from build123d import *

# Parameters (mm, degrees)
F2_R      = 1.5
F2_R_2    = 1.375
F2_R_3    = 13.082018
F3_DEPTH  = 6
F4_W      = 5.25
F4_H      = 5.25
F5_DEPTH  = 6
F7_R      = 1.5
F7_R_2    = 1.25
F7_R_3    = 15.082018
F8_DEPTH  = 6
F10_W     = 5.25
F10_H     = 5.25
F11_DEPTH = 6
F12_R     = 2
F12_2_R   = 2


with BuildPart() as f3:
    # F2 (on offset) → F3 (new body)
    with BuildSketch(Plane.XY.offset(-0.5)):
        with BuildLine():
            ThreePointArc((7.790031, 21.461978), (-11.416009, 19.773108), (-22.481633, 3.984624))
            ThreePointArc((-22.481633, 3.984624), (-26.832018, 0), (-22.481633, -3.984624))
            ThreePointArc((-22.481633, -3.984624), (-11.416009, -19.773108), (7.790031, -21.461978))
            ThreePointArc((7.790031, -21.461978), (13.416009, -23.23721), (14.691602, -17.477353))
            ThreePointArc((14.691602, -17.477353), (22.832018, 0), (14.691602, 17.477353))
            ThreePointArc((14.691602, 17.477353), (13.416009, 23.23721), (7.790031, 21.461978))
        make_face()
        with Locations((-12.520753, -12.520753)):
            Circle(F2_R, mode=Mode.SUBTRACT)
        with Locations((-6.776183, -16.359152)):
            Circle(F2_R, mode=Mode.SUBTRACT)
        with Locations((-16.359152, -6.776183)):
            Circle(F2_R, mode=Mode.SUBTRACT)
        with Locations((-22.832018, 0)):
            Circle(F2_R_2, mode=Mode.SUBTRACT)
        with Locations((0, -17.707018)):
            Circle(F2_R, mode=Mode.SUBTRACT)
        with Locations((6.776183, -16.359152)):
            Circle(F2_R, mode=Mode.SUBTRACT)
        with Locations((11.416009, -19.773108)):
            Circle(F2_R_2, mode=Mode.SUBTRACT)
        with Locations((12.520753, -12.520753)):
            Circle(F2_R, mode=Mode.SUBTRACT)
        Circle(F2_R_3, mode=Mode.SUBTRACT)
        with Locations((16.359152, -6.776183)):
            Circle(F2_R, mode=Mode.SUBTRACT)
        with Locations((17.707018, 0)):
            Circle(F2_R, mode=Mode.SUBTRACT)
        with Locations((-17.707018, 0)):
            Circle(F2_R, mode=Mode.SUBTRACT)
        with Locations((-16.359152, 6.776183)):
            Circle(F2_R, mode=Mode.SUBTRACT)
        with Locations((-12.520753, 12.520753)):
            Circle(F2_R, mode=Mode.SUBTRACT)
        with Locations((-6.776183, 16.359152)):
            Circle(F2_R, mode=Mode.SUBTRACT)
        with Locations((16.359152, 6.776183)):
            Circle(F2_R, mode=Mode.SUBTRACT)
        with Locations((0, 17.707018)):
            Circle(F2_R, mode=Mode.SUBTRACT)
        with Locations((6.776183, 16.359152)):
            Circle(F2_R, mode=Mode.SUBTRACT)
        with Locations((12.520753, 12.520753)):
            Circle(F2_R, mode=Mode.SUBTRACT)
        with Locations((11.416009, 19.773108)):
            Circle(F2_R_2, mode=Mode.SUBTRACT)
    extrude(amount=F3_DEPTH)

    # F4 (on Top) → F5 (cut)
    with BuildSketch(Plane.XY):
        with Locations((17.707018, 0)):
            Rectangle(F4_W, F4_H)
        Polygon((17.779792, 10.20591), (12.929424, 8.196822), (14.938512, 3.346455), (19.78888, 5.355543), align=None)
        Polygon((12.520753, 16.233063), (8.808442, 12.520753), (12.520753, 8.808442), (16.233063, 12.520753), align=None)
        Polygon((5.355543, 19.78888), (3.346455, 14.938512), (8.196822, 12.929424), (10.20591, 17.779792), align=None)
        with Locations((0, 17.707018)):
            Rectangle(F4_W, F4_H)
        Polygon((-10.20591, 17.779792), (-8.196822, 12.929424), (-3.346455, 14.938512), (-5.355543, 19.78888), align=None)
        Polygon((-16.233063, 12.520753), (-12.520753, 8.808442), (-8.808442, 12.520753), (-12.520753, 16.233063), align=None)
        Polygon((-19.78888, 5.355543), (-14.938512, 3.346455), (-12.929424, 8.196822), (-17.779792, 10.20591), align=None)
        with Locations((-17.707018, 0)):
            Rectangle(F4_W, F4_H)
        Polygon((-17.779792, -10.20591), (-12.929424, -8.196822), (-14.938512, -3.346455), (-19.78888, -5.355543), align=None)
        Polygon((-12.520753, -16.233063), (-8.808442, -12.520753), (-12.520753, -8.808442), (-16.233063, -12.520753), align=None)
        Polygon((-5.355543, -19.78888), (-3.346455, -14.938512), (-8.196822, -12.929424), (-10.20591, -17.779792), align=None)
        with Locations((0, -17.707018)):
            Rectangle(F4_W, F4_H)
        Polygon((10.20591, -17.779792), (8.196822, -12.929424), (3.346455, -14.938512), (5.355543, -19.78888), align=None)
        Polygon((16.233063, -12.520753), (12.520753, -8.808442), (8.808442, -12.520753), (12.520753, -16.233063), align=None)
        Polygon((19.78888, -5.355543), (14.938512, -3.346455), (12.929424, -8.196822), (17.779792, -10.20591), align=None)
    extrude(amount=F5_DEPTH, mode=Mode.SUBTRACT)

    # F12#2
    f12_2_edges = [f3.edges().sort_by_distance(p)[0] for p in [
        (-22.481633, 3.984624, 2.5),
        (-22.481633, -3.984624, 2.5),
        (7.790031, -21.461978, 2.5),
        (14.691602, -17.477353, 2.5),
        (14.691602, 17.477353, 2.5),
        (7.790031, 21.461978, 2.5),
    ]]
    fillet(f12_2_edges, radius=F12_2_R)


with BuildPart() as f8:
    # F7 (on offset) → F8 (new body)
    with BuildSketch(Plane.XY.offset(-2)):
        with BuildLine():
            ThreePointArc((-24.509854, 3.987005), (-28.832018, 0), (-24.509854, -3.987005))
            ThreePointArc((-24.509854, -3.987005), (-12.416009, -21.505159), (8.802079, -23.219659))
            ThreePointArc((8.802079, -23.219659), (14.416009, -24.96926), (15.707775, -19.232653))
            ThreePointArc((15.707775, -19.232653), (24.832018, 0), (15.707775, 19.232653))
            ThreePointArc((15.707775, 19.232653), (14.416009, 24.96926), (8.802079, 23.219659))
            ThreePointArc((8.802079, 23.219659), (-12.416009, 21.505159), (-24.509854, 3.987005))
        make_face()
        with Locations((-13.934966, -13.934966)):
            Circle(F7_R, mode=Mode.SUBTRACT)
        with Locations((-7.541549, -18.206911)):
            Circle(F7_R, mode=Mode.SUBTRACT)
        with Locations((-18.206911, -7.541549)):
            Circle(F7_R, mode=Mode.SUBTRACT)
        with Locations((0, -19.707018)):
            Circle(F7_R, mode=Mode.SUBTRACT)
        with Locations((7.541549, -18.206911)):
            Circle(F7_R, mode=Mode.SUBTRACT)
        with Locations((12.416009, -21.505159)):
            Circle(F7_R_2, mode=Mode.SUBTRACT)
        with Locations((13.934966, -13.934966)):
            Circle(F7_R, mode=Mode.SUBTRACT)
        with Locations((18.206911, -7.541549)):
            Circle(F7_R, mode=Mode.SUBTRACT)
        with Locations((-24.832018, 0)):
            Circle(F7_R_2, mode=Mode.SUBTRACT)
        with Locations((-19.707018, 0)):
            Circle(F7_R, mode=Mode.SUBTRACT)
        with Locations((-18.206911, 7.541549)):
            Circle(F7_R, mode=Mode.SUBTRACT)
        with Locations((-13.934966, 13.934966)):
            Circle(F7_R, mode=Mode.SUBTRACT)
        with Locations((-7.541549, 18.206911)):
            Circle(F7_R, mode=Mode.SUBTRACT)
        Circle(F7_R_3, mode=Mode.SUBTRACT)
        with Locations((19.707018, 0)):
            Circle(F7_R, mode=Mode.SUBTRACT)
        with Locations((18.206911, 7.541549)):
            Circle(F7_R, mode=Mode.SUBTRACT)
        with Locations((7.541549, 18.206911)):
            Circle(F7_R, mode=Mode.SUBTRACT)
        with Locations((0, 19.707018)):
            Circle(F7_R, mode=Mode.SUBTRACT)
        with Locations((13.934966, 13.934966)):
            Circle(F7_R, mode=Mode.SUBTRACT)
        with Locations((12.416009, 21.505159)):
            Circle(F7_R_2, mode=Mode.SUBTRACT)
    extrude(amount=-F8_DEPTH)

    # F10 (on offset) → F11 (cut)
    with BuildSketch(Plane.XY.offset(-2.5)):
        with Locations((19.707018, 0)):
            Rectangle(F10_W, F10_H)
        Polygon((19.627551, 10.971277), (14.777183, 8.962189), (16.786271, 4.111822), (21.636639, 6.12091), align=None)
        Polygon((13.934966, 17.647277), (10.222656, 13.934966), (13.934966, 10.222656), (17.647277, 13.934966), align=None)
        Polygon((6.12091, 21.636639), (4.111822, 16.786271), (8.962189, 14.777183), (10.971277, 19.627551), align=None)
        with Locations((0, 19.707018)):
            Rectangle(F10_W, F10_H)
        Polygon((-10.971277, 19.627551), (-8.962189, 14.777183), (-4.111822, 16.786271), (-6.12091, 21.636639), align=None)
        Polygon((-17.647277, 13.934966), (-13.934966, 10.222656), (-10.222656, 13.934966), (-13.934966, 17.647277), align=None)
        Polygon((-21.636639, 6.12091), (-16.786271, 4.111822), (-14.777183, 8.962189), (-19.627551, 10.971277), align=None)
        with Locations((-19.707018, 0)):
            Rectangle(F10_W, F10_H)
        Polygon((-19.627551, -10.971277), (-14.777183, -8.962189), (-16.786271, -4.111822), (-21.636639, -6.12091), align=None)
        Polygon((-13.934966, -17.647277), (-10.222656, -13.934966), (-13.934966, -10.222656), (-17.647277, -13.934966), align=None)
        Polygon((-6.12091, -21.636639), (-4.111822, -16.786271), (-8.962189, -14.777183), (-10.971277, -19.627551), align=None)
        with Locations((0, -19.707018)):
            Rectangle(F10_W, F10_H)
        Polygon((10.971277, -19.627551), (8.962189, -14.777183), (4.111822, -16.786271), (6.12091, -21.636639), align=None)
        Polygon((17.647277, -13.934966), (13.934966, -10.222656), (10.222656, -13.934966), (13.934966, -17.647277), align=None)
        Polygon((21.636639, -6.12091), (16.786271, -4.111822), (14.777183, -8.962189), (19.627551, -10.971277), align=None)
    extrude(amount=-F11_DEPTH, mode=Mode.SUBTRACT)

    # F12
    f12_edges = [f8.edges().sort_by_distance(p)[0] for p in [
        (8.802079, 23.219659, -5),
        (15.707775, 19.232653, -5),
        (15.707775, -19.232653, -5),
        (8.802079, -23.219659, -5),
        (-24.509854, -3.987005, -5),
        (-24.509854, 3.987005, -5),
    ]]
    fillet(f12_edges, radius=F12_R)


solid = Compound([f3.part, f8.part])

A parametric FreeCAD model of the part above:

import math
import FreeCAD as App
import Part
import Sketcher
Q = App.Units.Quantity


def edges_at(feature, points):
    """Names of the edges that pass closest to the given points."""
    edges = feature.Shape.Edges
    near = lambda p: min(range(len(edges)), key=lambda i: edges[i].distToShape(Part.Vertex(*p))[0])
    return sorted({f"Edge{near(p) + 1}" for p in points})


def add_polygon(sketch, points):
    """Adds a closed chain of lines whose ends are joined by coincident constraints."""
    first, n = sketch.GeometryCount, len(points)
    for a, b in zip(points, points[1:] + points[:1]):
        sketch.addGeometry(Part.LineSegment(App.Vector(*a, 0), App.Vector(*b, 0)), False)
    for i in range(n):
        sketch.addConstraint(Sketcher.Constraint("Coincident", first + i, 2, first + (i + 1) % n, 1))

doc = App.newDocument("Part")
body = doc.addObject("PartDesign::Body", "Body")

# Sketch on XY plane
sketch1 = doc.addObject("Sketcher::SketchObject", "Sketch")
body.addObject(sketch1)
sketch1.AttachmentSupport = (doc.XY_Plane, [""])
sketch1.MapMode = "FlatFace"
sketch1.AttachmentOffset = App.Placement(App.Vector(0, 0, -0.5), App.Rotation())
sketch1.addGeometry([
    Part.ArcOfCircle(Part.Circle(App.Vector(0.000001, 0, 0), App.Vector(0, 0, 1), 22.832019), math.radians(70.050678), math.radians(169.949324)),  # 0
    Part.ArcOfCircle(Part.Circle(App.Vector(-22.832018, 0, 0), App.Vector(0, 0, 1), 4), math.radians(84.97466), math.radians(275.02534)),  # 1
    Part.ArcOfCircle(Part.Circle(App.Vector(0.000001, 0, 0), App.Vector(0, 0, 1), 22.832019), math.radians(-169.949324), math.radians(-70.050678)),  # 2
    Part.ArcOfCircle(Part.Circle(App.Vector(11.416009, -19.773108, 0), App.Vector(0, 0, 1), 4), math.radians(-155.025337), math.radians(35.025351)),  # 3
    Part.ArcOfCircle(Part.Circle(App.Vector(0.000001, 0, 0), App.Vector(0, 0, 1), 22.832017), math.radians(-49.949325), math.radians(49.949325)),  # 4
    Part.ArcOfCircle(Part.Circle(App.Vector(11.416009, 19.773108, 0), App.Vector(0, 0, 1), 4), math.radians(-35.025351), math.radians(155.025337)),  # 5
    Part.Circle(App.Vector(-6.776183, -16.359152, 0), App.Vector(0, 0, 1), 1.5),  # 6
    Part.Circle(App.Vector(-12.520753, -12.520753, 0), App.Vector(0, 0, 1), 1.5),  # 7
    Part.Circle(App.Vector(-16.359152, -6.776183, 0), App.Vector(0, 0, 1), 1.5),  # 8
    Part.Circle(App.Vector(0, -17.707018, 0), App.Vector(0, 0, 1), 1.5),  # 9
    Part.Circle(App.Vector(6.776183, -16.359152, 0), App.Vector(0, 0, 1), 1.5),  # 10
    Part.Circle(App.Vector(11.416009, -19.773108, 0), App.Vector(0, 0, 1), 1.375),  # 11
    Part.Circle(App.Vector(12.520753, -12.520753, 0), App.Vector(0, 0, 1), 1.5),  # 12
    Part.Circle(App.Vector(16.359152, -6.776183, 0), App.Vector(0, 0, 1), 1.5),  # 13
    Part.Circle(App.Vector(-22.832018, 0, 0), App.Vector(0, 0, 1), 1.375),  # 14
    Part.Circle(App.Vector(-17.707018, 0, 0), App.Vector(0, 0, 1), 1.5),  # 15
    Part.Circle(App.Vector(-16.359152, 6.776183, 0), App.Vector(0, 0, 1), 1.5),  # 16
    Part.Circle(App.Vector(-12.520753, 12.520753, 0), App.Vector(0, 0, 1), 1.5),  # 17
    Part.Circle(App.Vector(-6.776183, 16.359152, 0), App.Vector(0, 0, 1), 1.5),  # 18
    Part.Circle(App.Vector(0, 0, 0), App.Vector(0, 0, 1), 13.082018),  # 19
    Part.Circle(App.Vector(17.707018, 0, 0), App.Vector(0, 0, 1), 1.5),  # 20
    Part.Circle(App.Vector(16.359152, 6.776183, 0), App.Vector(0, 0, 1), 1.5),  # 21
    Part.Circle(App.Vector(0, 17.707018, 0), App.Vector(0, 0, 1), 1.5),  # 22
    Part.Circle(App.Vector(6.776183, 16.359152, 0), App.Vector(0, 0, 1), 1.5),  # 23
    Part.Circle(App.Vector(12.520753, 12.520753, 0), App.Vector(0, 0, 1), 1.5),  # 24
    Part.Circle(App.Vector(11.416009, 19.773108, 0), App.Vector(0, 0, 1), 1.375),  # 25
], False)
sketch1.addConstraint([
    Sketcher.Constraint("Coincident", 0, 2, 1, 1),
    Sketcher.Constraint("Coincident", 1, 2, 2, 1),
    Sketcher.Constraint("Coincident", 2, 2, 3, 1),
    Sketcher.Constraint("Coincident", 3, 2, 4, 1),
    Sketcher.Constraint("Coincident", 4, 2, 5, 1),
    Sketcher.Constraint("Coincident", 5, 2, 0, 1),
    Sketcher.Constraint("Coincident", 0, 3, -1, 1),
    Sketcher.Constraint("Coincident", 2, 3, -1, 1),
    Sketcher.Constraint("Coincident", 4, 3, -1, 1),
    Sketcher.Constraint("Coincident", 19, 3, -1, 1),
    Sketcher.Constraint("Coincident", 11, 3, 3, 3),
    Sketcher.Constraint("Coincident", 14, 3, 1, 3),
    Sketcher.Constraint("Coincident", 25, 3, 5, 3),
    Sketcher.Constraint("Equal", 0, 2),
    Sketcher.Constraint("Equal", 1, 3),
    Sketcher.Constraint("Equal", 2, 4),
    Sketcher.Constraint("Equal", 3, 5),
    Sketcher.Constraint("Equal", 6, 7),
    Sketcher.Constraint("Equal", 7, 8),
    Sketcher.Constraint("Equal", 8, 9),
    Sketcher.Constraint("Equal", 9, 10),
    Sketcher.Constraint("Equal", 10, 12),
    Sketcher.Constraint("Equal", 12, 13),
    Sketcher.Constraint("Equal", 11, 14),
    Sketcher.Constraint("Equal", 13, 15),
    Sketcher.Constraint("Equal", 15, 16),
    Sketcher.Constraint("Equal", 16, 17),
    Sketcher.Constraint("Equal", 17, 18),
    Sketcher.Constraint("Equal", 18, 20),
    Sketcher.Constraint("Equal", 20, 21),
    Sketcher.Constraint("Equal", 21, 22),
    Sketcher.Constraint("Equal", 22, 23),
    Sketcher.Constraint("Equal", 23, 24),
    Sketcher.Constraint("Equal", 14, 25),
    Sketcher.Constraint("Symmetric", 13, 3, 16, 3, -1, 1),
    Sketcher.Constraint("Symmetric", 12, 3, 17, 3, -1, 1),
    Sketcher.Constraint("Symmetric", 10, 3, 18, 3, -1, 1),
    Sketcher.Constraint("Symmetric", 15, 3, 20, 3, -1, 1),
    Sketcher.Constraint("Symmetric", 8, 3, 21, 3, -1, 1),
    Sketcher.Constraint("Symmetric", 9, 3, 22, 3, -1, 1),
    Sketcher.Constraint("Symmetric", 6, 3, 23, 3, -1, 1),
    Sketcher.Constraint("Symmetric", 7, 3, 24, 3, -1, 1),
    Sketcher.Constraint("Symmetric", 6, 3, 10, 3, -2),
    Sketcher.Constraint("Symmetric", 7, 3, 12, 3, -2),
    Sketcher.Constraint("Symmetric", 8, 3, 13, 3, -2),
    Sketcher.Constraint("Symmetric", 3, 3, 5, 3, -1),
    Sketcher.Constraint("PointOnObject", 1, 3, -1),
    Sketcher.Constraint("PointOnObject", 9, 3, -2),
    Sketcher.Constraint("PointOnObject", 15, 3, -1),
    Sketcher.Constraint("Diameter", 6, 3.0),
    Sketcher.Constraint("Radius", 1, 4.0),
    Sketcher.Constraint("Diameter", 11, 2.75),
    Sketcher.Constraint("Radius", 0, 22.832019),
    Sketcher.Constraint("Diameter", 19, 26.164036),
    Sketcher.Constraint("DistanceX", 14, 3, 15, 3, 5.125),
    Sketcher.Constraint("DistanceX", -1, 1, 3, 2, 14.691602),
    Sketcher.Constraint("DistanceY", 6, 3, 7, 3, 3.838399),
    Sketcher.Constraint("DistanceX", 8, 3, 7, 3, 3.838399),
    Sketcher.Constraint("DistanceY", 3, 2, 12, 3, 4.9566),
    Sketcher.Constraint("DistanceX", 1, 3, -1, 1, 22.832018),
    Sketcher.Constraint("DistanceX", -1, 1, 3, 3, 11.416009),
    Sketcher.Constraint("DistanceY", 9, 3, -1, 1, 17.707018),
    Sketcher.Constraint("DistanceX", 7, 3, 6, 3, 5.74457),
    Sketcher.Constraint("DistanceY", 7, 3, 8, 3, 5.74457),
    Sketcher.Constraint("DistanceX", 6, 3, 11, 3, 18.192192),
])
pad1 = doc.addObject("PartDesign::Pad", "Pad")
body.addObject(pad1)
pad1.Profile = sketch1
pad1.Length = 6

# Sketch on XY plane
sketch2 = doc.addObject("Sketcher::SketchObject", "Sketch001")
body.addObject(sketch2)
sketch2.AttachmentSupport = (doc.XY_Plane, [""])
sketch2.MapMode = "FlatFace"
add_polygon(sketch2, [(15.082018, 2.625), (15.082018, -2.625), (20.332018, -2.625), (20.332018, 2.625)])  # lines 0-3
add_polygon(sketch2, [(17.779792, 10.20591), (12.929424, 8.196822), (14.938512, 3.346455), (19.78888, 5.355543)])  # lines 4-7
add_polygon(sketch2, [(12.520753, 16.233063), (8.808442, 12.520753), (12.520753, 8.808442), (16.233063, 12.520753)])  # lines 8-11
add_polygon(sketch2, [(5.355543, 19.78888), (3.346455, 14.938512), (8.196822, 12.929424), (10.20591, 17.779792)])  # lines 12-15
add_polygon(sketch2, [(-2.625, 20.332018), (-2.625, 15.082018), (2.625, 15.082018), (2.625, 20.332018)])  # lines 16-19
add_polygon(sketch2, [(-10.20591, 17.779792), (-8.196822, 12.929424), (-3.346455, 14.938512), (-5.355543, 19.78888)])  # lines 20-23
add_polygon(sketch2, [(-16.233063, 12.520753), (-12.520753, 8.808442), (-8.808442, 12.520753), (-12.520753, 16.233063)])  # lines 24-27
add_polygon(sketch2, [(-19.78888, 5.355543), (-14.938512, 3.346455), (-12.929424, 8.196822), (-17.779792, 10.20591)])  # lines 28-31
add_polygon(sketch2, [(-20.332018, 2.625), (-20.332018, -2.625), (-15.082018, -2.625), (-15.082018, 2.625)])  # lines 32-35
add_polygon(sketch2, [(-17.779792, -10.20591), (-12.929424, -8.196822), (-14.938512, -3.346455), (-19.78888, -5.355543)])  # lines 36-39
add_polygon(sketch2, [(-12.520753, -16.233063), (-8.808442, -12.520753), (-12.520753, -8.808442), (-16.233063, -12.520753)])  # lines 40-43
add_polygon(sketch2, [(-5.355543, -19.78888), (-3.346455, -14.938512), (-8.196822, -12.929424), (-10.20591, -17.779792)])  # lines 44-47
add_polygon(sketch2, [(-2.625, -15.082018), (-2.625, -20.332018), (2.625, -20.332018), (2.625, -15.082018)])  # lines 48-51
add_polygon(sketch2, [(10.20591, -17.779792), (8.196822, -12.929424), (3.346455, -14.938512), (5.355543, -19.78888)])  # lines 52-55
add_polygon(sketch2, [(16.233063, -12.520753), (12.520753, -8.808442), (8.808442, -12.520753), (12.520753, -16.233063)])  # lines 56-59
add_polygon(sketch2, [(19.78888, -5.355543), (14.938512, -3.346455), (12.929424, -8.196822), (17.779792, -10.20591)])  # lines 60-63
sketch2.addConstraint([
    Sketcher.Constraint("Vertical", 0),
    Sketcher.Constraint("Horizontal", 1),
    Sketcher.Constraint("Vertical", 2),
    Sketcher.Constraint("Horizontal", 3),
    Sketcher.Constraint("Vertical", 16),
    Sketcher.Constraint("Horizontal", 17),
    Sketcher.Constraint("Vertical", 18),
    Sketcher.Constraint("Horizontal", 19),
    Sketcher.Constraint("Vertical", 32),
    Sketcher.Constraint("Horizontal", 33),
    Sketcher.Constraint("Vertical", 34),
    Sketcher.Constraint("Horizontal", 35),
    Sketcher.Constraint("Vertical", 48),
    Sketcher.Constraint("Horizontal", 49),
    Sketcher.Constraint("Vertical", 50),
    Sketcher.Constraint("Horizontal", 51),
    Sketcher.Constraint("Symmetric", 2, 2, 32, 2, -1, 1),
    Sketcher.Constraint("Symmetric", 0, 2, 34, 2, -1, 1),
    Sketcher.Constraint("Symmetric", 4, 2, 36, 2, -1, 1),
    Sketcher.Constraint("Symmetric", 5, 2, 37, 2, -1, 1),
    Sketcher.Constraint("Symmetric", 6, 2, 38, 2, -1, 1),
    Sketcher.Constraint("Symmetric", 7, 2, 39, 2, -1, 1),
    Sketcher.Constraint("Symmetric", 8, 2, 40, 2, -1, 1),
    Sketcher.Constraint("Symmetric", 9, 2, 41, 2, -1, 1),
    Sketcher.Constraint("Symmetric", 10, 2, 42, 2, -1, 1),
    Sketcher.Constraint("Symmetric", 11, 2, 43, 2, -1, 1),
    Sketcher.Constraint("Symmetric", 12, 2, 44, 2, -1, 1),
    Sketcher.Constraint("Symmetric", 13, 2, 45, 2, -1, 1),
    Sketcher.Constraint("Symmetric", 14, 2, 46, 2, -1, 1),
    Sketcher.Constraint("Symmetric", 15, 2, 47, 2, -1, 1),
    Sketcher.Constraint("Symmetric", 18, 2, 48, 2, -1, 1),
    Sketcher.Constraint("Symmetric", 16, 2, 50, 2, -1, 1),
    Sketcher.Constraint("Symmetric", 20, 2, 52, 2, -1, 1),
    Sketcher.Constraint("Symmetric", 21, 2, 53, 2, -1, 1),
    Sketcher.Constraint("Symmetric", 22, 2, 54, 2, -1, 1),
    Sketcher.Constraint("Symmetric", 23, 2, 55, 2, -1, 1),
    Sketcher.Constraint("Symmetric", 24, 2, 56, 2, -1, 1),
    Sketcher.Constraint("Symmetric", 25, 2, 57, 2, -1, 1),
    Sketcher.Constraint("Symmetric", 26, 2, 58, 2, -1, 1),
    Sketcher.Constraint("Symmetric", 27, 2, 59, 2, -1, 1),
    Sketcher.Constraint("Symmetric", 28, 2, 60, 2, -1, 1),
    Sketcher.Constraint("Symmetric", 29, 2, 61, 2, -1, 1),
    Sketcher.Constraint("Symmetric", 30, 2, 62, 2, -1, 1),
    Sketcher.Constraint("Symmetric", 31, 2, 63, 2, -1, 1),
    Sketcher.Constraint("Symmetric", 13, 2, 20, 2, -2),
    Sketcher.Constraint("Symmetric", 12, 2, 21, 2, -2),
    Sketcher.Constraint("Symmetric", 15, 2, 22, 2, -2),
    Sketcher.Constraint("Symmetric", 14, 2, 23, 2, -2),
    Sketcher.Constraint("Symmetric", 9, 2, 24, 2, -2),
    Sketcher.Constraint("Symmetric", 8, 2, 25, 2, -2),
    Sketcher.Constraint("Symmetric", 11, 2, 26, 2, -2),
    Sketcher.Constraint("Symmetric", 10, 2, 27, 2, -2),
    Sketcher.Constraint("Symmetric", 5, 2, 28, 2, -2),
    Sketcher.Constraint("Symmetric", 4, 2, 29, 2, -2),
    Sketcher.Constraint("Symmetric", 7, 2, 30, 2, -2),
    Sketcher.Constraint("Symmetric", 6, 2, 31, 2, -2),
    Sketcher.Constraint("Perpendicular", 4, 5),
    Sketcher.Constraint("Perpendicular", 5, 6),
    Sketcher.Constraint("Perpendicular", 6, 7),
    Sketcher.Constraint("Perpendicular", 8, 9),
    Sketcher.Constraint("Perpendicular", 9, 10),
    Sketcher.Constraint("Perpendicular", 10, 11),
    Sketcher.Constraint("Perpendicular", 12, 13),
    Sketcher.Constraint("Perpendicular", 13, 14),
    Sketcher.Constraint("Perpendicular", 14, 15),
    Sketcher.Constraint("Parallel", 7, 20),
    Sketcher.Constraint("Parallel", 11, 24),
    Sketcher.Constraint("Horizontal", 8, 2, 10, 2),
    Sketcher.Constraint("Horizontal", 1, 2, 32, 2),
    Sketcher.Constraint("Vertical", 19, 2, 48, 2),
    Sketcher.Constraint("Equal", 3, 17),
    Sketcher.Constraint("Equal", 51, 0),
    Sketcher.Constraint("Equal", 2, 16),
    Sketcher.Constraint("Equal", 4, 5),
    Sketcher.Constraint("Equal", 7, 8),
    Sketcher.Constraint("Equal", 11, 12),
    Sketcher.Constraint("Equal", 12, 13),
    Sketcher.Constraint("Angle", 4, Q("-157.500002 deg")),
    Sketcher.Constraint("DistanceX", 1, 1, 1, 2, 5.25),
    Sketcher.Constraint("Distance", 4, 5.25),
    Sketcher.Constraint("DistanceX", -1, 1, 1, 2, 20.332018),
    Sketcher.Constraint("DistanceY", -1, 1, 4, 2, 8.196822),
    Sketcher.Constraint("DistanceX", -1, 1, 5, 2, 14.938512),
    Sketcher.Constraint("DistanceY", -1, 1, 12, 2, 14.938512),
    Sketcher.Constraint("DistanceX", -1, 1, 13, 2, 8.196822),
    Sketcher.Constraint("DistanceY", -1, 1, 18, 2, 20.332018),
    Sketcher.Constraint("DistanceX", -1, 1, 8, 2, 8.808442),
    Sketcher.Constraint("DistanceY", -1, 1, 8, 2, 12.520753),
])
pocket1 = doc.addObject("PartDesign::Pocket", "Pocket")
body.addObject(pocket1)
pocket1.Profile = sketch2
pocket1.Length = 6
pocket1.Reversed = True
doc.recompute()

fillet = doc.addObject("PartDesign::Fillet", "Fillet")
body.addObject(fillet)
fillet.Base = (pocket1, edges_at(pocket1, [
    (-22.482, 3.985, 2.5),
    (-22.482, -3.985, 2.5),
    (7.79, -21.462, 2.5),
    (14.692, -17.477, 2.5),
    (14.692, 17.477, 2.5),
    (7.79, 21.462, 2.5),
]))
fillet.Radius = 2
body2 = doc.addObject("PartDesign::Body", "Body001")

# Sketch on XY plane
sketch3 = doc.addObject("Sketcher::SketchObject", "Sketch002")
body2.addObject(sketch3)
sketch3.AttachmentSupport = (doc.getObject("XY_Plane001"), [""])
sketch3.MapMode = "FlatFace"
sketch3.AttachmentOffset = App.Placement(App.Vector(0, 0, -2), App.Rotation())
sketch3.addGeometry([
    Part.ArcOfCircle(Part.Circle(App.Vector(-24.832018, 0, 0), App.Vector(0, 0, 1), 4), math.radians(85.380334), math.radians(274.619666)),  # 0
    Part.ArcOfCircle(Part.Circle(App.Vector(0, 0.000001, 0), App.Vector(0, 0, 1), 24.832019), math.radians(-170.760653), math.radians(-69.239349)),  # 1
    Part.ArcOfCircle(Part.Circle(App.Vector(12.416009, -21.505158, 0), App.Vector(0, 0, 1), 4), math.radians(-154.619656), math.radians(34.619663)),  # 2
    Part.ArcOfCircle(Part.Circle(App.Vector(-0.000001, 0, 0), App.Vector(0, 0, 1), 24.832019), math.radians(-50.76065), math.radians(50.76065)),  # 3
    Part.ArcOfCircle(Part.Circle(App.Vector(12.416009, 21.505158, 0), App.Vector(0, 0, 1), 4), math.radians(-34.619663), math.radians(154.619656)),  # 4
    Part.ArcOfCircle(Part.Circle(App.Vector(0, -0.000001, 0), App.Vector(0, 0, 1), 24.832019), math.radians(69.239349), math.radians(170.760653)),  # 5
    Part.Circle(App.Vector(-7.541549, -18.206911, 0), App.Vector(0, 0, 1), 1.5),  # 6
    Part.Circle(App.Vector(-13.934966, -13.934966, 0), App.Vector(0, 0, 1), 1.5),  # 7
    Part.Circle(App.Vector(-18.206911, -7.541549, 0), App.Vector(0, 0, 1), 1.5),  # 8
    Part.Circle(App.Vector(0, -19.707018, 0), App.Vector(0, 0, 1), 1.5),  # 9
    Part.Circle(App.Vector(7.541549, -18.206911, 0), App.Vector(0, 0, 1), 1.5),  # 10
    Part.Circle(App.Vector(12.416009, -21.505159, 0), App.Vector(0, 0, 1), 1.25),  # 11
    Part.Circle(App.Vector(13.934966, -13.934966, 0), App.Vector(0, 0, 1), 1.5),  # 12
    Part.Circle(App.Vector(18.206911, -7.541549, 0), App.Vector(0, 0, 1), 1.5),  # 13
    Part.Circle(App.Vector(-24.832018, 0, 0), App.Vector(0, 0, 1), 1.25),  # 14
    Part.Circle(App.Vector(-19.707018, 0, 0), App.Vector(0, 0, 1), 1.5),  # 15
    Part.Circle(App.Vector(-18.206911, 7.541549, 0), App.Vector(0, 0, 1), 1.5),  # 16
    Part.Circle(App.Vector(-13.934966, 13.934966, 0), App.Vector(0, 0, 1), 1.5),  # 17
    Part.Circle(App.Vector(-7.541549, 18.206911, 0), App.Vector(0, 0, 1), 1.5),  # 18
    Part.Circle(App.Vector(0, 0, 0), App.Vector(0, 0, 1), 15.082018),  # 19
    Part.Circle(App.Vector(19.707018, 0, 0), App.Vector(0, 0, 1), 1.5),  # 20
    Part.Circle(App.Vector(18.206911, 7.541549, 0), App.Vector(0, 0, 1), 1.5),  # 21
    Part.Circle(App.Vector(0, 19.707018, 0), App.Vector(0, 0, 1), 1.5),  # 22
    Part.Circle(App.Vector(7.541549, 18.206911, 0), App.Vector(0, 0, 1), 1.5),  # 23
    Part.Circle(App.Vector(13.934966, 13.934966, 0), App.Vector(0, 0, 1), 1.5),  # 24
    Part.Circle(App.Vector(12.416009, 21.505159, 0), App.Vector(0, 0, 1), 1.25),  # 25
], False)
sketch3.addConstraint([
    Sketcher.Constraint("Coincident", 0, 2, 1, 1),
    Sketcher.Constraint("Coincident", 1, 2, 2, 1),
    Sketcher.Constraint("Coincident", 2, 2, 3, 1),
    Sketcher.Constraint("Coincident", 3, 2, 4, 1),
    Sketcher.Constraint("Coincident", 4, 2, 5, 1),
    Sketcher.Constraint("Coincident", 5, 2, 0, 1),
    Sketcher.Constraint("Coincident", 1, 3, -1, 1),
    Sketcher.Constraint("Coincident", 3, 3, -1, 1),
    Sketcher.Constraint("Coincident", 5, 3, -1, 1),
    Sketcher.Constraint("Coincident", 19, 3, -1, 1),
    Sketcher.Constraint("Coincident", 11, 3, 2, 3),
    Sketcher.Constraint("Coincident", 14, 3, 0, 3),
    Sketcher.Constraint("Coincident", 25, 3, 4, 3),
    Sketcher.Constraint("Equal", 0, 2),
    Sketcher.Constraint("Equal", 1, 3),
    Sketcher.Constraint("Equal", 2, 4),
    Sketcher.Constraint("Equal", 3, 5),
    Sketcher.Constraint("Equal", 6, 7),
    Sketcher.Constraint("Equal", 7, 8),
    Sketcher.Constraint("Equal", 8, 9),
    Sketcher.Constraint("Equal", 9, 10),
    Sketcher.Constraint("Equal", 10, 12),
    Sketcher.Constraint("Equal", 12, 13),
    Sketcher.Constraint("Equal", 11, 14),
    Sketcher.Constraint("Equal", 13, 15),
    Sketcher.Constraint("Equal", 15, 16),
    Sketcher.Constraint("Equal", 16, 17),
    Sketcher.Constraint("Equal", 17, 18),
    Sketcher.Constraint("Equal", 18, 20),
    Sketcher.Constraint("Equal", 20, 21),
    Sketcher.Constraint("Equal", 21, 22),
    Sketcher.Constraint("Equal", 22, 23),
    Sketcher.Constraint("Equal", 23, 24),
    Sketcher.Constraint("Equal", 14, 25),
    Sketcher.Constraint("Symmetric", 13, 3, 16, 3, -1, 1),
    Sketcher.Constraint("Symmetric", 12, 3, 17, 3, -1, 1),
    Sketcher.Constraint("Symmetric", 10, 3, 18, 3, -1, 1),
    Sketcher.Constraint("Symmetric", 15, 3, 20, 3, -1, 1),
    Sketcher.Constraint("Symmetric", 8, 3, 21, 3, -1, 1),
    Sketcher.Constraint("Symmetric", 9, 3, 22, 3, -1, 1),
    Sketcher.Constraint("Symmetric", 6, 3, 23, 3, -1, 1),
    Sketcher.Constraint("Symmetric", 7, 3, 24, 3, -1, 1),
    Sketcher.Constraint("Symmetric", 6, 3, 10, 3, -2),
    Sketcher.Constraint("Symmetric", 7, 3, 12, 3, -2),
    Sketcher.Constraint("Symmetric", 8, 3, 13, 3, -2),
    Sketcher.Constraint("Symmetric", 2, 3, 4, 3, -1),
    Sketcher.Constraint("PointOnObject", 0, 3, -1),
    Sketcher.Constraint("PointOnObject", 9, 3, -2),
    Sketcher.Constraint("PointOnObject", 15, 3, -1),
    Sketcher.Constraint("Diameter", 6, 3.0),
    Sketcher.Constraint("Radius", 0, 4.0),
    Sketcher.Constraint("Diameter", 11, 2.5),
    Sketcher.Constraint("Radius", 1, 24.832019),
    Sketcher.Constraint("Diameter", 19, 30.164036),
    Sketcher.Constraint("DistanceX", 14, 3, 15, 3, 5.125),
    Sketcher.Constraint("DistanceY", 1, 2, 11, 3, 1.7145),
    Sketcher.Constraint("DistanceX", 0, 3, -1, 1, 24.832018),
    Sketcher.Constraint("DistanceX", -1, 1, 2, 3, 12.416009),
    Sketcher.Constraint("DistanceX", 6, 3, -1, 1, 7.541549),
    Sketcher.Constraint("DistanceY", 6, 3, -1, 1, 18.206911),
    Sketcher.Constraint("DistanceX", 8, 3, -1, 1, 18.206911),
    Sketcher.Constraint("DistanceY", 8, 3, -1, 1, 7.541549),
    Sketcher.Constraint("DistanceY", 9, 3, -1, 1, 19.707018),
    Sketcher.Constraint("DistanceX", 12, 3, 2, 2, 1.772809),
    Sketcher.Constraint("DistanceY", 7, 3, -1, 1, 13.934966),
])
pad2 = doc.addObject("PartDesign::Pad", "Pad001")
body2.addObject(pad2)
pad2.Profile = sketch3
pad2.Length = 6
pad2.Reversed = True

# Sketch on XY plane
sketch4 = doc.addObject("Sketcher::SketchObject", "Sketch003")
body2.addObject(sketch4)
sketch4.AttachmentSupport = (doc.getObject("XY_Plane001"), [""])
sketch4.MapMode = "FlatFace"
sketch4.AttachmentOffset = App.Placement(App.Vector(0, 0, -2.5), App.Rotation())
add_polygon(sketch4, [(17.082018, 2.625), (17.082018, -2.625), (22.332018, -2.625), (22.332018, 2.625)])  # lines 0-3
add_polygon(sketch4, [(19.627551, 10.971277), (14.777183, 8.962189), (16.786271, 4.111822), (21.636639, 6.12091)])  # lines 4-7
add_polygon(sketch4, [(13.934966, 17.647277), (10.222656, 13.934966), (13.934966, 10.222656), (17.647277, 13.934966)])  # lines 8-11
add_polygon(sketch4, [(6.12091, 21.636639), (4.111822, 16.786271), (8.962189, 14.777183), (10.971277, 19.627551)])  # lines 12-15
add_polygon(sketch4, [(-2.625, 22.332018), (-2.625, 17.082018), (2.625, 17.082018), (2.625, 22.332018)])  # lines 16-19
add_polygon(sketch4, [(-10.971277, 19.627551), (-8.962189, 14.777183), (-4.111822, 16.786271), (-6.12091, 21.636639)])  # lines 20-23
add_polygon(sketch4, [(-17.647277, 13.934966), (-13.934966, 10.222656), (-10.222656, 13.934966), (-13.934966, 17.647277)])  # lines 24-27
add_polygon(sketch4, [(-21.636639, 6.12091), (-16.786271, 4.111822), (-14.777183, 8.962189), (-19.627551, 10.971277)])  # lines 28-31
add_polygon(sketch4, [(-22.332018, 2.625), (-22.332018, -2.625), (-17.082018, -2.625), (-17.082018, 2.625)])  # lines 32-35
add_polygon(sketch4, [(-19.627551, -10.971277), (-14.777183, -8.962189), (-16.786271, -4.111822), (-21.636639, -6.12091)])  # lines 36-39
add_polygon(sketch4, [(-13.934966, -17.647277), (-10.222656, -13.934966), (-13.934966, -10.222656), (-17.647277, -13.934966)])  # lines 40-43
add_polygon(sketch4, [(-6.12091, -21.636639), (-4.111822, -16.786271), (-8.962189, -14.777183), (-10.971277, -19.627551)])  # lines 44-47
add_polygon(sketch4, [(-2.625, -17.082018), (-2.625, -22.332018), (2.625, -22.332018), (2.625, -17.082018)])  # lines 48-51
add_polygon(sketch4, [(10.971277, -19.627551), (8.962189, -14.777183), (4.111822, -16.786271), (6.12091, -21.636639)])  # lines 52-55
add_polygon(sketch4, [(17.647277, -13.934966), (13.934966, -10.222656), (10.222656, -13.934966), (13.934966, -17.647277)])  # lines 56-59
add_polygon(sketch4, [(21.636639, -6.12091), (16.786271, -4.111822), (14.777183, -8.962189), (19.627551, -10.971277)])  # lines 60-63
sketch4.addConstraint([
    Sketcher.Constraint("Vertical", 0),
    Sketcher.Constraint("Horizontal", 1),
    Sketcher.Constraint("Vertical", 2),
    Sketcher.Constraint("Horizontal", 3),
    Sketcher.Constraint("Vertical", 16),
    Sketcher.Constraint("Horizontal", 17),
    Sketcher.Constraint("Vertical", 18),
    Sketcher.Constraint("Horizontal", 19),
    Sketcher.Constraint("Vertical", 32),
    Sketcher.Constraint("Horizontal", 33),
    Sketcher.Constraint("Vertical", 34),
    Sketcher.Constraint("Horizontal", 35),
    Sketcher.Constraint("Vertical", 48),
    Sketcher.Constraint("Horizontal", 49),
    Sketcher.Constraint("Vertical", 50),
    Sketcher.Constraint("Horizontal", 51),
    Sketcher.Constraint("Symmetric", 2, 2, 32, 2, -1, 1),
    Sketcher.Constraint("Symmetric", 0, 2, 34, 2, -1, 1),
    Sketcher.Constraint("Symmetric", 4, 2, 36, 2, -1, 1),
    Sketcher.Constraint("Symmetric", 5, 2, 37, 2, -1, 1),
    Sketcher.Constraint("Symmetric", 6, 2, 38, 2, -1, 1),
    Sketcher.Constraint("Symmetric", 7, 2, 39, 2, -1, 1),
    Sketcher.Constraint("Symmetric", 8, 2, 40, 2, -1, 1),
    Sketcher.Constraint("Symmetric", 9, 2, 41, 2, -1, 1),
    Sketcher.Constraint("Symmetric", 10, 2, 42, 2, -1, 1),
    Sketcher.Constraint("Symmetric", 11, 2, 43, 2, -1, 1),
    Sketcher.Constraint("Symmetric", 12, 2, 44, 2, -1, 1),
    Sketcher.Constraint("Symmetric", 13, 2, 45, 2, -1, 1),
    Sketcher.Constraint("Symmetric", 14, 2, 46, 2, -1, 1),
    Sketcher.Constraint("Symmetric", 15, 2, 47, 2, -1, 1),
    Sketcher.Constraint("Symmetric", 18, 2, 48, 2, -1, 1),
    Sketcher.Constraint("Symmetric", 16, 2, 50, 2, -1, 1),
    Sketcher.Constraint("Symmetric", 20, 2, 52, 2, -1, 1),
    Sketcher.Constraint("Symmetric", 21, 2, 53, 2, -1, 1),
    Sketcher.Constraint("Symmetric", 22, 2, 54, 2, -1, 1),
    Sketcher.Constraint("Symmetric", 23, 2, 55, 2, -1, 1),
    Sketcher.Constraint("Symmetric", 24, 2, 56, 2, -1, 1),
    Sketcher.Constraint("Symmetric", 25, 2, 57, 2, -1, 1),
    Sketcher.Constraint("Symmetric", 26, 2, 58, 2, -1, 1),
    Sketcher.Constraint("Symmetric", 27, 2, 59, 2, -1, 1),
    Sketcher.Constraint("Symmetric", 28, 2, 60, 2, -1, 1),
    Sketcher.Constraint("Symmetric", 29, 2, 61, 2, -1, 1),
    Sketcher.Constraint("Symmetric", 30, 2, 62, 2, -1, 1),
    Sketcher.Constraint("Symmetric", 31, 2, 63, 2, -1, 1),
    Sketcher.Constraint("Symmetric", 13, 2, 20, 2, -2),
    Sketcher.Constraint("Symmetric", 12, 2, 21, 2, -2),
    Sketcher.Constraint("Symmetric", 15, 2, 22, 2, -2),
    Sketcher.Constraint("Symmetric", 14, 2, 23, 2, -2),
    Sketcher.Constraint("Symmetric", 9, 2, 24, 2, -2),
    Sketcher.Constraint("Symmetric", 8, 2, 25, 2, -2),
    Sketcher.Constraint("Symmetric", 11, 2, 26, 2, -2),
    Sketcher.Constraint("Symmetric", 10, 2, 27, 2, -2),
    Sketcher.Constraint("Symmetric", 5, 2, 28, 2, -2),
    Sketcher.Constraint("Symmetric", 4, 2, 29, 2, -2),
    Sketcher.Constraint("Symmetric", 7, 2, 30, 2, -2),
    Sketcher.Constraint("Symmetric", 6, 2, 31, 2, -2),
    Sketcher.Constraint("Perpendicular", 4, 5),
    Sketcher.Constraint("Perpendicular", 5, 6),
    Sketcher.Constraint("Perpendicular", 6, 7),
    Sketcher.Constraint("Perpendicular", 8, 9),
    Sketcher.Constraint("Perpendicular", 9, 10),
    Sketcher.Constraint("Perpendicular", 10, 11),
    Sketcher.Constraint("Perpendicular", 12, 13),
    Sketcher.Constraint("Perpendicular", 13, 14),
    Sketcher.Constraint("Perpendicular", 14, 15),
    Sketcher.Constraint("Parallel", 7, 20),
    Sketcher.Constraint("Parallel", 11, 24),
    Sketcher.Constraint("Horizontal", 8, 2, 10, 2),
    Sketcher.Constraint("Horizontal", 1, 2, 32, 2),
    Sketcher.Constraint("Vertical", 19, 2, 48, 2),
    Sketcher.Constraint("Equal", 3, 17),
    Sketcher.Constraint("Equal", 51, 0),
    Sketcher.Constraint("Equal", 2, 16),
    Sketcher.Constraint("Equal", 4, 5),
    Sketcher.Constraint("Equal", 7, 8),
    Sketcher.Constraint("Equal", 11, 12),
    Sketcher.Constraint("Equal", 12, 13),
    Sketcher.Constraint("Angle", 4, Q("-157.500002 deg")),
    Sketcher.Constraint("DistanceX", 1, 1, 1, 2, 5.25),
    Sketcher.Constraint("Distance", 4, 5.25),
    Sketcher.Constraint("DistanceX", -1, 1, 0, 2, 17.082018),
    Sketcher.Constraint("DistanceY", -1, 1, 4, 2, 8.962189),
    Sketcher.Constraint("DistanceX", -1, 1, 5, 2, 16.786271),
    Sketcher.Constraint("DistanceY", -1, 1, 12, 2, 16.786271),
    Sketcher.Constraint("DistanceX", -1, 1, 13, 2, 8.962189),
    Sketcher.Constraint("DistanceY", -1, 1, 16, 2, 17.082018),
    Sketcher.Constraint("DistanceX", -1, 1, 8, 2, 10.222656),
    Sketcher.Constraint("DistanceY", -1, 1, 8, 2, 13.934966),
])
pocket2 = doc.addObject("PartDesign::Pocket", "Pocket001")
body2.addObject(pocket2)
pocket2.Profile = sketch4
pocket2.Length = 6
doc.recompute()

fillet2 = doc.addObject("PartDesign::Fillet", "Fillet001")
body2.addObject(fillet2)
fillet2.Base = (pocket2, edges_at(pocket2, [
    (8.802, 23.22, -5),
    (15.708, 19.233, -5),
    (15.708, -19.233, -5),
    (8.802, -23.22, -5),
    (-24.51, -3.987, -5),
    (-24.51, 3.987, -5),
]))
fillet2.Radius = 2

doc.recompute()
